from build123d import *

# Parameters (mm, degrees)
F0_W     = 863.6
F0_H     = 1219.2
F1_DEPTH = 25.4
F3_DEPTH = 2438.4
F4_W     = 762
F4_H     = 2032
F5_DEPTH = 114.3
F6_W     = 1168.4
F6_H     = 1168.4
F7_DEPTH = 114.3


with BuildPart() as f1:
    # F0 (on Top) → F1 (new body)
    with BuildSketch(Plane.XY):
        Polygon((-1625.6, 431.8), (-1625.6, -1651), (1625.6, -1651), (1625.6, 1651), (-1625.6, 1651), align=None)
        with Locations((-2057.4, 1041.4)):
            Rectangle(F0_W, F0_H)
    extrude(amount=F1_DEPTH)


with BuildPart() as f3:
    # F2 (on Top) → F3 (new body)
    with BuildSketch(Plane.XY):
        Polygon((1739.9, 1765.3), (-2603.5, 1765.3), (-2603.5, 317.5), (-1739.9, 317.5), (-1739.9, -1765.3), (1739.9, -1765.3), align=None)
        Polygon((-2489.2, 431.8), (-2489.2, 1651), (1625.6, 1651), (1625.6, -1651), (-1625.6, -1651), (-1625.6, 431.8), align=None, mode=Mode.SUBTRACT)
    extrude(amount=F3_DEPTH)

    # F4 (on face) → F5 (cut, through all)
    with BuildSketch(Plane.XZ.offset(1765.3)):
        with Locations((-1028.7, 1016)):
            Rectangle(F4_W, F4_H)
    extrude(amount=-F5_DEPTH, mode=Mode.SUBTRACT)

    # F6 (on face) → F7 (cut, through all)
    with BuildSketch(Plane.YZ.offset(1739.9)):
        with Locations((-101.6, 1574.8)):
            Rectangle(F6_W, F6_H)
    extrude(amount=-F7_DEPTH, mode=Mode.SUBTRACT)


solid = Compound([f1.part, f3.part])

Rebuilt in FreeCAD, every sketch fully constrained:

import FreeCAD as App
import Part
import Sketcher
from FreeCAD import Vector
Q = App.Units.Quantity


def add_polygon(sketch, points):
    """Adds a closed chain of lines whose ends are joined by coincident constraints."""
    first, n = sketch.GeometryCount, len(points)
    for a, b in zip(points, points[1:] + points[:1]):
        sketch.addGeometry(Part.LineSegment(App.Vector(*a, 0), App.Vector(*b, 0)), False)
    for i in range(n):
        sketch.addConstraint(Sketcher.Constraint("Coincident", first + i, 2, first + (i + 1) % n, 1))

doc = App.newDocument("Part")
params = doc.addObject("Spreadsheet::Sheet", "Params")
for row, (alias, value) in enumerate([
    ("sketch1_width", "128 in"),
    ("sketch1_width2", "162 in"),
    ("sketch1_height", "130 in"),
    ("sketch1_height2", "48 in"),
    ("pad1_length", "1 in"),
    ("sketch2_width", "171 in"),
    ("sketch2_width2", "34 in"),
    ("sketch2_width3", "162 in"),
    ("sketch2_height", "57 in"),
    ("sketch2_height2", "82 in"),
    ("pad2_length", "96 in"),
    ("sketch3_width", "30 in"),
    ("sketch3_height", "80 in"),
    ("pocket1_length", "4.5 in"),
    ("sketch4_width", "46 in"),
    ("pocket2_length", "4.5 in"),
], start=1):
    params.set(f"A{row}", alias)
    params.set(f"B{row}", "=" + value)
    params.setAlias(f"B{row}", alias)

body = doc.addObject("PartDesign::Body", "Body")

sketch1 = body.newObject("Sketcher::SketchObject", "Sketch")
sketch1.AttachmentSupport = (doc.getObject("XY_Plane"), [""])
sketch1.MapMode = "FlatFace"
add_polygon(sketch1, [(-1625.6, -1651), (1625.6, -1651), (1625.6, 1651), (-2489.2, 1651), (-2489.2, 431.8), (-1625.6, 431.8)])
sketch1.addConstraint([
    Sketcher.Constraint("Horizontal", 0),
    Sketcher.Constraint("Vertical", 1),
    Sketcher.Constraint("Horizontal", 2),
    Sketcher.Constraint("Vertical", 3),
    Sketcher.Constraint("Horizontal", 4),
    Sketcher.Constraint("Vertical", 5),
    Sketcher.Constraint("Symmetric", 1, 2, 5, 2, -1, 1),
    Sketcher.Constraint("DistanceX", 0, 1, 0, 2, Q("128 in")),
    Sketcher.Constraint("DistanceX", 2, 2, 2, 1, Q("162 in")),
    Sketcher.Constraint("DistanceY", 1, 1, 1, 2, Q("130 in")),
    Sketcher.Constraint("DistanceY", 3, 2, 3, 1, Q("48 in")),
])
sketch1.setExpression("Constraints[13]", "Params.sketch1_width")
sketch1.setExpression("Constraints[14]", "Params.sketch1_width2")
sketch1.setExpression("Constraints[15]", "Params.sketch1_height")
sketch1.setExpression("Constraints[16]", "Params.sketch1_height2")
pad1 = body.newObject("PartDesign::Pad", "Pad")
pad1.Profile = sketch1
pad1.setExpression("Length", "Params.pad1_length")
body2 = doc.addObject("PartDesign::Body", "Body001")

sketch2 = body2.newObject("Sketcher::SketchObject", "Sketch001")
sketch2.AttachmentSupport = (doc.getObject("XY_Plane001"), [""])
sketch2.MapMode = "FlatFace"
add_polygon(sketch2, [(1739.9, 1765.3), (-2603.5, 1765.3), (-2603.5, 317.5), (-1739.9, 317.5), (-1739.9, -1765.3), (1739.9, -1765.3)])
add_polygon(sketch2, [(-1625.6, 431.8), (-2489.2, 431.8), (-2489.2, 1651), (1625.6, 1651), (1625.6, -1651), (-1625.6, -1651)])
sketch2.addConstraint([
    Sketcher.Constraint("Horizontal", 0),
    Sketcher.Constraint("Vertical", 1),
    Sketcher.Constraint("Horizontal", 2),
    Sketcher.Constraint("Vertical", 3),
    Sketcher.Constraint("Horizontal", 4),
    Sketcher.Constraint("Vertical", 5),
    Sketcher.Constraint("Horizontal", 6),
    Sketcher.Constraint("Vertical", 7),
    Sketcher.Constraint("Horizontal", 8),
    Sketcher.Constraint("Vertical", 9),
    Sketcher.Constraint("Horizontal", 10),
    Sketcher.Constraint("Vertical", 11),
    Sketcher.Constraint("Symmetric", 3, 2, 5, 2, -1, 1),
    Sketcher.Constraint("Symmetric", 8, 2, 10, 2, -1, 1),
    Sketcher.Constraint("Equal", 2, 6),
    Sketcher.Constraint("Equal", 3, 11),
    Sketcher.Constraint("DistanceX", 0, 2, 0, 1, Q("171 in")),
    Sketcher.Constraint("DistanceX", 2, 1, 2, 2, Q("34 in")),
    Sketcher.Constraint("DistanceX", 8, 1, 8, 2, Q("162 in")),
    Sketcher.Constraint("DistanceY", 1, 2, 1, 1, Q("57 in")),
    Sketcher.Constraint("DistanceY", 3, 2, 3, 1, Q("82 in")),
    Sketcher.Constraint("DistanceY", 7, 1, 7, 2, Q("48 in")),
])
sketch2.setExpression("Constraints[28]", "Params.sketch2_width")
sketch2.setExpression("Constraints[29]", "Params.sketch2_width2")
sketch2.setExpression("Constraints[30]", "Params.sketch2_width3")
sketch2.setExpression("Constraints[31]", "Params.sketch2_height")
sketch2.setExpression("Constraints[32]", "Params.sketch2_height2")
pad2 = body2.newObject("PartDesign::Pad", "Pad001")
pad2.Profile = sketch2
pad2.setExpression("Length", "Params.pad2_length")

sketch3 = body2.newObject("Sketcher::SketchObject", "Sketch002")
sketch3.AttachmentSupport = (doc.getObject("XZ_Plane001"), [""])
sketch3.MapMode = "FlatFace"
sketch3.AttachmentOffset = App.Placement(Vector(0, 0, 69.5 * 25.4), App.Rotation())
add_polygon(sketch3, [(-1409.7, 2032), (-1409.7, 0), (-647.7, 0), (-647.7, 2032)])
sketch3.addConstraint([
    Sketcher.Constraint("Vertical", 0),
    Sketcher.Constraint("Horizontal", 1),
    Sketcher.Constraint("Vertical", 2),
    Sketcher.Constraint("Horizontal", 3),
    Sketcher.Constraint("PointOnObject", 0, 2, -1),
    Sketcher.Constraint("DistanceX", 1, 1, 1, 2, Q("30 in")),
    Sketcher.Constraint("DistanceY", 0, 2, 0, 1, Q("80 in")),
    Sketcher.Constraint("DistanceX", 0, 2, -1, 1, Q("55.5 in")),
])
sketch3.setExpression("Constraints[9]", "Params.sketch3_width")
sketch3.setExpression("Constraints[10]", "Params.sketch3_height")
pocket1 = body2.newObject("PartDesign::Pocket", "Pocket")
pocket1.Profile = sketch3
pocket1.setExpression("Length", "Params.pocket1_length")

sketch4 = body2.newObject("Sketcher::SketchObject", "Sketch003")
sketch4.AttachmentSupport = (doc.getObject("YZ_Plane001"), [""])
sketch4.MapMode = "FlatFace"
sketch4.AttachmentOffset = App.Placement(Vector(0, 0, 68.5 * 25.4), App.Rotation())
add_polygon(sketch4, [(-685.8, 2159), (-685.8, 990.6), (482.6, 990.6), (482.6, 2159)])
sketch4.addConstraint([
    Sketcher.Constraint("Vertical", 0),
    Sketcher.Constraint("Horizontal", 1),
    Sketcher.Constraint("Vertical", 2),
    Sketcher.Constraint("Horizontal", 3),
    Sketcher.Constraint("Equal", 3, 0),
    Sketcher.Constraint("DistanceX", 1, 1, 1, 2, Q("46 in")),
    Sketcher.Constraint("DistanceX", 0, 2, -1, 1, Q("27 in")),
    Sketcher.Constraint("DistanceY", -1, 1, 0, 2, Q("39 in")),
])
sketch4.setExpression("Constraints[9]", "Params.sketch4_width")
pocket2 = body2.newObject("PartDesign::Pocket", "Pocket001")
pocket2.Profile = sketch4
pocket2.setExpression("Length", "Params.pocket2_length")

doc.recompute()
